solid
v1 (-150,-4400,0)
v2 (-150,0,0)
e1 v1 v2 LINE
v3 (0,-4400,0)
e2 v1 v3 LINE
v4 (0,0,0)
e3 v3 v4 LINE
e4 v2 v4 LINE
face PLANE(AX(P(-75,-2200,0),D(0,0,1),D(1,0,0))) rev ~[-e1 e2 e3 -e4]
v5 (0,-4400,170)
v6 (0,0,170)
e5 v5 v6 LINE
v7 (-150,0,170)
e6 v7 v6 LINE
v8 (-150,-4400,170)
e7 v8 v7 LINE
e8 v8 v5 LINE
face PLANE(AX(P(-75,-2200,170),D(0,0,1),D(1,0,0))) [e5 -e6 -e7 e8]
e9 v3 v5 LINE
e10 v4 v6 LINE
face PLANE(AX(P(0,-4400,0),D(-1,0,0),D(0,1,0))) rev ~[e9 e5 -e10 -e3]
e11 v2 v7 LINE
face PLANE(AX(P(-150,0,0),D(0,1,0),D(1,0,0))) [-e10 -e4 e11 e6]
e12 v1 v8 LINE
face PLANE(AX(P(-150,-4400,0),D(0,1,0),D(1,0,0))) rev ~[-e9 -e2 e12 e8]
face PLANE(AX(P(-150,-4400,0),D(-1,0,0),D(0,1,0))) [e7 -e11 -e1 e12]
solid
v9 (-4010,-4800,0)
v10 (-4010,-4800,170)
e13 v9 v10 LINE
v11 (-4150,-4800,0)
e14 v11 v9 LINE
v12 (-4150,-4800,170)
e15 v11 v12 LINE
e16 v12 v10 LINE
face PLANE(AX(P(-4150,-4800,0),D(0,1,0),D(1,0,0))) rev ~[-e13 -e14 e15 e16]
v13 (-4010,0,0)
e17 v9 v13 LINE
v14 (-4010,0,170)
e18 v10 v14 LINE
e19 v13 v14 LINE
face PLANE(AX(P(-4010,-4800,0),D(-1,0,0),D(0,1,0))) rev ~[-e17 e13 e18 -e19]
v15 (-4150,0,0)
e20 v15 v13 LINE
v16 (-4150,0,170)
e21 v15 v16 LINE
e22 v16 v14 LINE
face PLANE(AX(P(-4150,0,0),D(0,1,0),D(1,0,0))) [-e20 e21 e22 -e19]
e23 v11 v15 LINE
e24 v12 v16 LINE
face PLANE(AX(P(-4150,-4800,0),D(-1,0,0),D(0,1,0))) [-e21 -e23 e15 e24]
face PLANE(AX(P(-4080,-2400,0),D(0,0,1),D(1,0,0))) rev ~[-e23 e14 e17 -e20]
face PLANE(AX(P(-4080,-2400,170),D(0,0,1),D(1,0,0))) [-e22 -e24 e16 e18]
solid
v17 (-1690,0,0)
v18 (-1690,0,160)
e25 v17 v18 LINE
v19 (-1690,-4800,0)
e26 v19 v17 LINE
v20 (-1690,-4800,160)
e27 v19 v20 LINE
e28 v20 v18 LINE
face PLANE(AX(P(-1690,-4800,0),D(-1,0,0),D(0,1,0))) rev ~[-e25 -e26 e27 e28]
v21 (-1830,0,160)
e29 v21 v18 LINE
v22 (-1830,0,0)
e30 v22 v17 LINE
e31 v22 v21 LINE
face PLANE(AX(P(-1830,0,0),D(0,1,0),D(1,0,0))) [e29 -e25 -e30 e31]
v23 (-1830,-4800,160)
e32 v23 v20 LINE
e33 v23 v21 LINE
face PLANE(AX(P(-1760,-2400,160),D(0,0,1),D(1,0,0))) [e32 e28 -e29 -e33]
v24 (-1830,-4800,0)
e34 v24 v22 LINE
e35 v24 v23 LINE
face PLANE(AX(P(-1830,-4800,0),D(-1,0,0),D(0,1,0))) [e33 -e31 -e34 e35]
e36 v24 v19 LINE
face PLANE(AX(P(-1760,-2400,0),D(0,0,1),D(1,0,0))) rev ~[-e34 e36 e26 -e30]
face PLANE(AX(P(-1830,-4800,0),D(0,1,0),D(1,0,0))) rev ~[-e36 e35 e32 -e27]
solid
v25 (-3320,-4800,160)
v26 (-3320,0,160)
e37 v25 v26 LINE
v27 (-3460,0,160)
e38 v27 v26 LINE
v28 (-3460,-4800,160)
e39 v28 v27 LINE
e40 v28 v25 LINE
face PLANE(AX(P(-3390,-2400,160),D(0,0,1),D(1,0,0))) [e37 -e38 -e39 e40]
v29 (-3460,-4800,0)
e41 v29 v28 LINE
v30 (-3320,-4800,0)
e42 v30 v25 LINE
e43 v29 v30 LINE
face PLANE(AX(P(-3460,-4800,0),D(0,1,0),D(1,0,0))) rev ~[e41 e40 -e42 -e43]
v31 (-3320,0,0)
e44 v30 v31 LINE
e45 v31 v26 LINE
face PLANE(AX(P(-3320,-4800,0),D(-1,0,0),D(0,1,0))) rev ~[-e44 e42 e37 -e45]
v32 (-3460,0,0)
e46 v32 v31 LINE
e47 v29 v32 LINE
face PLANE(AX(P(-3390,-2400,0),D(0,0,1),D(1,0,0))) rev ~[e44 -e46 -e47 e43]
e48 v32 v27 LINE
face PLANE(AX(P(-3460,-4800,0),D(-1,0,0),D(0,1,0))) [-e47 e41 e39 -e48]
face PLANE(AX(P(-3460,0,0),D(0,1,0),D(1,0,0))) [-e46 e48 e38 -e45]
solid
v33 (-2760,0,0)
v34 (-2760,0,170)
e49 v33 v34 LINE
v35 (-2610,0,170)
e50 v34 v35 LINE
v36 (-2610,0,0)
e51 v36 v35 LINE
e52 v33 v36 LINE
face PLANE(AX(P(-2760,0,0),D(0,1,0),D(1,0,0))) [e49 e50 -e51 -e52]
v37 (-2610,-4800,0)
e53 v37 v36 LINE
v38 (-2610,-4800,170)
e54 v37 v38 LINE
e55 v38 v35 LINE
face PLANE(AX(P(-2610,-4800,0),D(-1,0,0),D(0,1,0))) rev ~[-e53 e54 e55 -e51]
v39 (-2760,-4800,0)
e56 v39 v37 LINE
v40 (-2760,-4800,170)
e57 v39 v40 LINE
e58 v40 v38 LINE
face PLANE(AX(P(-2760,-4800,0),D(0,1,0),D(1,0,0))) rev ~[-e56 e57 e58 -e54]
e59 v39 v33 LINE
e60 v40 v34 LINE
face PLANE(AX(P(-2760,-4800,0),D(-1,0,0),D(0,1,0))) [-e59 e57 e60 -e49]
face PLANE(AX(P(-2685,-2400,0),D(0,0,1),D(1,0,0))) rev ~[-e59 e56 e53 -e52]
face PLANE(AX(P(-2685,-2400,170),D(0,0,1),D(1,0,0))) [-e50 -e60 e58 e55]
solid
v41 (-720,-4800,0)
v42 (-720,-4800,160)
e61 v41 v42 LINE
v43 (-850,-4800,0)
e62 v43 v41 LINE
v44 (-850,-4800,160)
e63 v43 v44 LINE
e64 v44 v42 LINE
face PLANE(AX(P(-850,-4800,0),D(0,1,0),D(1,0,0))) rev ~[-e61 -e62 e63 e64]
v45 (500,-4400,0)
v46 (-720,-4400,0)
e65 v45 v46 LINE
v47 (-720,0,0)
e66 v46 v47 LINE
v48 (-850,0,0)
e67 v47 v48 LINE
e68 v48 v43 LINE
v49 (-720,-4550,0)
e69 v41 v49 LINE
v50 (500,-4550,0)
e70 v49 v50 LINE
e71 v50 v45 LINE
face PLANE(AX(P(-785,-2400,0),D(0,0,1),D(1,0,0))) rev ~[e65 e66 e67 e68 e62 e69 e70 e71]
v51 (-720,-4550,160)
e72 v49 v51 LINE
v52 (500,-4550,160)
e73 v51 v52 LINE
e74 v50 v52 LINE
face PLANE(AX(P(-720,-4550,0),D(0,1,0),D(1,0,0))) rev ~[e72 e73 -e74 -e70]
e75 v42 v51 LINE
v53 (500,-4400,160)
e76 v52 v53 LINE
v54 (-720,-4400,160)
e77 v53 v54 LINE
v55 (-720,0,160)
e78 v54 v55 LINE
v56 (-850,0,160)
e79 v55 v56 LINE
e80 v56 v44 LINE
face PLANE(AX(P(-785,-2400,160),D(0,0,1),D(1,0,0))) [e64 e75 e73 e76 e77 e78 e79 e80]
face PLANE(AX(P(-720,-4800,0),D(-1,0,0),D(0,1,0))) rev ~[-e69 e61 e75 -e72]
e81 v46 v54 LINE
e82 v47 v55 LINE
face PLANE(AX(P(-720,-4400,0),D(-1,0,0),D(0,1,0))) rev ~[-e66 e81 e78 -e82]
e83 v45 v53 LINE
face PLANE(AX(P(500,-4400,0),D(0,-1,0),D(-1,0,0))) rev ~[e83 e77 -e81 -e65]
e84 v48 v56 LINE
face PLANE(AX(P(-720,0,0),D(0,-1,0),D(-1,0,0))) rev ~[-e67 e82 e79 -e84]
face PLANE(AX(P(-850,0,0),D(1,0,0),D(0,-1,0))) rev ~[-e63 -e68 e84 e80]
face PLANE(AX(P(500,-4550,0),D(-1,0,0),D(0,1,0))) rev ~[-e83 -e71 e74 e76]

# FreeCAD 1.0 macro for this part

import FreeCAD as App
import Part
import Sketcher

V = App.Vector

doc = App.newDocument("Part")
body = doc.addObject("PartDesign::Body", "Body")
body.AllowCompound = True

# Sketch on XY plane
sketch1 = body.newObject("Sketcher::SketchObject", "Sketch")
sketch1.AttachmentSupport = (doc.getObject("XY_Plane"), [""])
sketch1.MapMode = "FlatFace"
sketch1.addGeometry(Part.LineSegment(V(-4150, 0, 0), V(-4150, -4800, 0)), False)
sketch1.addGeometry(Part.LineSegment(V(-4150, -4800, 0), V(-4010, -4800, 0)), False)
sketch1.addGeometry(Part.LineSegment(V(-4010, -4800, 0), V(-4010, 0, 0)), False)
sketch1.addGeometry(Part.LineSegment(V(-4010, 0, 0), V(-4150, 0, 0)), False)
sketch1.addGeometry(Part.LineSegment(V(-2760, 0, 0), V(-2760, -4800, 0)), False)
sketch1.addGeometry(Part.LineSegment(V(-2760, -4800, 0), V(-2610, -4800, 0)), False)
sketch1.addGeometry(Part.LineSegment(V(-2610, -4800, 0), V(-2610, 0, 0)), False)
sketch1.addGeometry(Part.LineSegment(V(-2610, 0, 0), V(-2760, 0, 0)), False)
sketch1.addGeometry(Part.LineSegment(V(-150, 0, 0), V(-150, -4400, 0)), False)
sketch1.addGeometry(Part.LineSegment(V(-150, -4400, 0), V(0, -4400, 0)), False)
sketch1.addGeometry(Part.LineSegment(V(0, -4400, 0), V(0, 0, 0)), False)
sketch1.addGeometry(Part.LineSegment(V(0, 0, 0), V(-150, 0, 0)), False)
sketch1.addConstraint(Sketcher.Constraint("Coincident", 0, 2, 1, 1))
sketch1.addConstraint(Sketcher.Constraint("Coincident", 1, 2, 2, 1))
sketch1.addConstraint(Sketcher.Constraint("Coincident", 2, 2, 3, 1))
sketch1.addConstraint(Sketcher.Constraint("Coincident", 3, 2, 0, 1))
sketch1.addConstraint(Sketcher.Constraint("Coincident", 4, 2, 5, 1))
sketch1.addConstraint(Sketcher.Constraint("Coincident", 5, 2, 6, 1))
sketch1.addConstraint(Sketcher.Constraint("Coincident", 6, 2, 7, 1))
sketch1.addConstraint(Sketcher.Constraint("Coincident", 7, 2, 4, 1))
sketch1.addConstraint(Sketcher.Constraint("Coincident", 8, 2, 9, 1))
sketch1.addConstraint(Sketcher.Constraint("Coincident", 9, 2, 10, 1))
sketch1.addConstraint(Sketcher.Constraint("Coincident", 10, 2, 11, 1))
sketch1.addConstraint(Sketcher.Constraint("Coincident", 11, 2, 8, 1))
sketch1.addConstraint(Sketcher.Constraint("Vertical", 0))
sketch1.addConstraint(Sketcher.Constraint("Horizontal", 1))
sketch1.addConstraint(Sketcher.Constraint("Vertical", 2))
sketch1.addConstraint(Sketcher.Constraint("Horizontal", 3))
sketch1.addConstraint(Sketcher.Constraint("Vertical", 4))
sketch1.addConstraint(Sketcher.Constraint("Horizontal", 5))
sketch1.addConstraint(Sketcher.Constraint("Vertical", 6))
sketch1.addConstraint(Sketcher.Constraint("Horizontal", 7))
sketch1.addConstraint(Sketcher.Constraint("Vertical", 8))
sketch1.addConstraint(Sketcher.Constraint("Horizontal", 9))
sketch1.addConstraint(Sketcher.Constraint("Vertical", 10))
sketch1.addConstraint(Sketcher.Constraint("Horizontal", 11))
sketch1.addConstraint(Sketcher.Constraint("Coincident", 10, 2, -1, 1))
sketch1.addConstraint(Sketcher.Constraint("PointOnObject", 2, 2, -1))
sketch1.addConstraint(Sketcher.Constraint("PointOnObject", 6, 2, -1))
sketch1.addConstraint(Sketcher.Constraint("Horizontal", 1, 2, 4, 2))
sketch1.addConstraint(Sketcher.Constraint("Equal", 7, 9))
sketch1.addConstraint(Sketcher.Constraint("DistanceX", 1, 1, 1, 2, 140.0))
sketch1.addConstraint(Sketcher.Constraint("DistanceX", 5, 1, 5, 2, 150.0))
sketch1.addConstraint(Sketcher.Constraint("DistanceY", 0, 2, 0, 1, 4800.0))
sketch1.addConstraint(Sketcher.Constraint("DistanceY", 8, 2, 8, 1, 4400.0))
sketch1.addConstraint(Sketcher.Constraint("DistanceX", 0, 2, -1, 1, 4150.0))
sketch1.addConstraint(Sketcher.Constraint("DistanceX", 4, 2, -1, 1, 2760.0))
pad1 = body.newObject("PartDesign::Pad", "Pad")
pad1.Profile = sketch1
pad1.Length = 170
body2 = doc.addObject("PartDesign::Body", "Body001")
body2.AllowCompound = True

# Sketch on XY plane
sketch2 = body2.newObject("Sketcher::SketchObject", "Sketch001")
sketch2.AttachmentSupport = (doc.getObject("XY_Plane001"), [""])
sketch2.MapMode = "FlatFace"
sketch2.addGeometry(Part.LineSegment(V(-3460, 0, 0), V(-3460, -4800, 0)), False)
sketch2.addGeometry(Part.LineSegment(V(-3460, -4800, 0), V(-3320, -4800, 0)), False)
sketch2.addGeometry(Part.LineSegment(V(-3320, -4800, 0), V(-3320, 0, 0)), False)
sketch2.addGeometry(Part.LineSegment(V(-3320, 0, 0), V(-3460, 0, 0)), False)
sketch2.addGeometry(Part.LineSegment(V(-1830, 0, 0), V(-1830, -4800, 0)), False)
sketch2.addGeometry(Part.LineSegment(V(-1830, -4800, 0), V(-1690, -4800, 0)), False)
sketch2.addGeometry(Part.LineSegment(V(-1690, -4800, 0), V(-1690, 0, 0)), False)
sketch2.addGeometry(Part.LineSegment(V(-1690, 0, 0), V(-1830, 0, 0)), False)
sketch2.addGeometry(Part.LineSegment(V(-720, 0, 0), V(-850, 0, 0)), False)
sketch2.addGeometry(Part.LineSegment(V(-850, 0, 0), V(-850, -4800, 0)), False)
sketch2.addGeometry(Part.LineSegment(V(-850, -4800, 0), V(-720, -4800, 0)), False)
sketch2.addGeometry(Part.LineSegment(V(-720, -4800, 0), V(-720, -4550, 0)), False)
sketch2.addGeometry(Part.LineSegment(V(-720, -4550, 0), V(500, -4550, 0)), False)
sketch2.addGeometry(Part.LineSegment(V(500, -4550, 0), V(500, -4400, 0)), False)
sketch2.addGeometry(Part.LineSegment(V(500, -4400, 0), V(-720, -4400, 0)), False)
sketch2.addGeometry(Part.LineSegment(V(-720, -4400, 0), V(-720, 0, 0)), False)
sketch2.addConstraint(Sketcher.Constraint("Coincident", 0, 2, 1, 1))
sketch2.addConstraint(Sketcher.Constraint("Coincident", 1, 2, 2, 1))
sketch2.addConstraint(Sketcher.Constraint("Coincident", 2, 2, 3, 1))
sketch2.addConstraint(Sketcher.Constraint("Coincident", 3, 2, 0, 1))
sketch2.addConstraint(Sketcher.Constraint("Coincident", 4, 2, 5, 1))
sketch2.addConstraint(Sketcher.Constraint("Coincident", 5, 2, 6, 1))
sketch2.addConstraint(Sketcher.Constraint("Coincident", 6, 2, 7, 1))
sketch2.addConstraint(Sketcher.Constraint("Coincident", 7, 2, 4, 1))
sketch2.addConstraint(Sketcher.Constraint("Coincident", 8, 2, 9, 1))
sketch2.addConstraint(Sketcher.Constraint("Coincident", 9, 2, 10, 1))
sketch2.addConstraint(Sketcher.Constraint("Coincident", 10, 2, 11, 1))
sketch2.addConstraint(Sketcher.Constraint("Coincident", 11, 2, 12, 1))
sketch2.addConstraint(Sketcher.Constraint("Coincident", 12, 2, 13, 1))
sketch2.addConstraint(Sketcher.Constraint("Coincident", 13, 2, 14, 1))
sketch2.addConstraint(Sketcher.Constraint("Coincident", 14, 2, 15, 1))
sketch2.addConstraint(Sketcher.Constraint("Coincident", 15, 2, 8, 1))
sketch2.addConstraint(Sketcher.Constraint("Vertical", 0))
sketch2.addConstraint(Sketcher.Constraint("Horizontal", 1))
sketch2.addConstraint(Sketcher.Constraint("Vertical", 2))
sketch2.addConstraint(Sketcher.Constraint("Horizontal", 3))
sketch2.addConstraint(Sketcher.Constraint("Vertical", 4))
sketch2.addConstraint(Sketcher.Constraint("Horizontal", 5))
sketch2.addConstraint(Sketcher.Constraint("Vertical", 6))
sketch2.addConstraint(Sketcher.Constraint("Horizontal", 7))
sketch2.addConstraint(Sketcher.Constraint("Horizontal", 8))
sketch2.addConstraint(Sketcher.Constraint("Vertical", 9))
sketch2.addConstraint(Sketcher.Constraint("Horizontal", 10))
sketch2.addConstraint(Sketcher.Constraint("Vertical", 11))
sketch2.addConstraint(Sketcher.Constraint("Horizontal", 12))
sketch2.addConstraint(Sketcher.Constraint("Vertical", 13))
sketch2.addConstraint(Sketcher.Constraint("Horizontal", 14))
sketch2.addConstraint(Sketcher.Constraint("Vertical", 15))
sketch2.addConstraint(Sketcher.Constraint("PointOnObject", 2, 2, -1))
sketch2.addConstraint(Sketcher.Constraint("PointOnObject", 6, 2, -1))
sketch2.addConstraint(Sketcher.Constraint("PointOnObject", 8, 2, -1))
sketch2.addConstraint(Sketcher.Constraint("Horizontal", 1, 2, 4, 2))
sketch2.addConstraint(Sketcher.Constraint("Horizontal", 5, 2, 9, 2))
sketch2.addConstraint(Sketcher.Constraint("Vertical", 11, 2, 14, 2))
sketch2.addConstraint(Sketcher.Constraint("Equal", 3, 5))
sketch2.addConstraint(Sketcher.Constraint("DistanceX", 1, 1, 1, 2, 140.0))
sketch2.addConstraint(Sketcher.Constraint("DistanceX", 8, 2, 8, 1, 130.0))
sketch2.addConstraint(Sketcher.Constraint("DistanceX", 12, 1, 12, 2, 1220.0))
sketch2.addConstraint(Sketcher.Constraint("DistanceY", 0, 2, 0, 1, 4800.0))
sketch2.addConstraint(Sketcher.Constraint("DistanceY", 11, 1, 11, 2, 250.0))
sketch2.addConstraint(Sketcher.Constraint("DistanceY", 13, 1, 13, 2, 150.0))
sketch2.addConstraint(Sketcher.Constraint("DistanceX", 0, 2, -1, 1, 3460.0))
sketch2.addConstraint(Sketcher.Constraint("DistanceX", 4, 2, -1, 1, 1830.0))
sketch2.addConstraint(Sketcher.Constraint("DistanceX", 8, 2, -1, 1, 850.0))
pad2 = body2.newObject("PartDesign::Pad", "Pad001")
pad2.Profile = sketch2
pad2.Length = 160

doc.recompute()
